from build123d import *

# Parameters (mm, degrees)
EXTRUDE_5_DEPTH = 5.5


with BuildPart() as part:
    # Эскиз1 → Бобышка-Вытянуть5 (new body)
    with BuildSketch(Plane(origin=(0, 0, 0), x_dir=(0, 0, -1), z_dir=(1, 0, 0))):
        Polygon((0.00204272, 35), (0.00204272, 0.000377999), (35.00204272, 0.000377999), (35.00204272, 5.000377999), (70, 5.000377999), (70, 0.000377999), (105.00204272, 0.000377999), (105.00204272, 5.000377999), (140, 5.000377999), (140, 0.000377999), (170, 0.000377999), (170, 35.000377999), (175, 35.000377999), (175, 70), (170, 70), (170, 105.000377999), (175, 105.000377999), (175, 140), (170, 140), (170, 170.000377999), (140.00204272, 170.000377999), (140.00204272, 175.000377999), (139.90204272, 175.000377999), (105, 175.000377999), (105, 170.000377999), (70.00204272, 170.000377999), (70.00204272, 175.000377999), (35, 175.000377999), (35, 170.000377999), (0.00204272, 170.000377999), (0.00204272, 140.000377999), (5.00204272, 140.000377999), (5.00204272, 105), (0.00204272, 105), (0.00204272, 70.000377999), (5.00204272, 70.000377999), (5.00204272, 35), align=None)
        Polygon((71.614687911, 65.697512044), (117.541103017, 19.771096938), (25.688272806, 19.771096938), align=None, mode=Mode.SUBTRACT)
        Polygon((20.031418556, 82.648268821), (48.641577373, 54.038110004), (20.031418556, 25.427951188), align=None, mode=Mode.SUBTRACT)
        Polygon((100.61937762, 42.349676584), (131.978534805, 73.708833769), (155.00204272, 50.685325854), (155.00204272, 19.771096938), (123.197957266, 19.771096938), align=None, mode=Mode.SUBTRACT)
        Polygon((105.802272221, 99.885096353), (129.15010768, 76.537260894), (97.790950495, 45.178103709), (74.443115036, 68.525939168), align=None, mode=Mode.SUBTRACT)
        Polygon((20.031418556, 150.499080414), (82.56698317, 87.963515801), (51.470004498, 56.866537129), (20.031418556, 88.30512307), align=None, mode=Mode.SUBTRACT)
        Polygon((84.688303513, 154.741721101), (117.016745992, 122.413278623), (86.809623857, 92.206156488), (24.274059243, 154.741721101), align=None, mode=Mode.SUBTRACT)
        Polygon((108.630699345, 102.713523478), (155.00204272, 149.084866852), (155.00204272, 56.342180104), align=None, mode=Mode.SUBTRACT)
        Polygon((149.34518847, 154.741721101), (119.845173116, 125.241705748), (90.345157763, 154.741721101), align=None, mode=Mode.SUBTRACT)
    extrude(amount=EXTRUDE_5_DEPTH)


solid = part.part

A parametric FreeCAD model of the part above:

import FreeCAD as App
import Part
import Sketcher
from FreeCAD import Vector

doc = App.newDocument("Part")
body = doc.addObject("PartDesign::Body", "Body")

# Sketch on YZ plane
sketch1 = doc.addObject("Sketcher::SketchObject", "Sketch")
body.addObject(sketch1)
sketch1.AttachmentSupport = (doc.YZ_Plane, [""])
sketch1.MapMode = "FlatFace"
sketch1.addGeometry([
    Part.LineSegment(Vector(35, -0.002043, 0), Vector(0.000378, -0.002043, 0)),  # 0
    Part.LineSegment(Vector(0.000378, -0.002043, 0), Vector(0.000378, -35.002043, 0)),  # 1
    Part.LineSegment(Vector(0.000378, -35.002043, 0), Vector(5.000378, -35.002043, 0)),  # 2
    Part.LineSegment(Vector(5.000378, -35.002043, 0), Vector(5.000378, -70, 0)),  # 3
    Part.LineSegment(Vector(5.000378, -70, 0), Vector(0.000378, -70, 0)),  # 4
    Part.LineSegment(Vector(0.000378, -70, 0), Vector(0.000378, -105.002043, 0)),  # 5
    Part.LineSegment(Vector(0.000378, -105.002043, 0), Vector(5.000378, -105.002043, 0)),  # 6
    Part.LineSegment(Vector(5.000378, -105.002043, 0), Vector(5.000378, -140, 0)),  # 7
    Part.LineSegment(Vector(5.000378, -140, 0), Vector(0.000378, -140, 0)),  # 8
    Part.LineSegment(Vector(0.000378, -140, 0), Vector(0.000378, -170, 0)),  # 9
    Part.LineSegment(Vector(0.000378, -170, 0), Vector(35.000378, -170, 0)),  # 10
    Part.LineSegment(Vector(35.000378, -170, 0), Vector(35.000378, -175, 0)),  # 11
    Part.LineSegment(Vector(35.000378, -175, 0), Vector(70, -175, 0)),  # 12
    Part.LineSegment(Vector(70, -175, 0), Vector(70, -170, 0)),  # 13
    Part.LineSegment(Vector(70, -170, 0), Vector(105.000378, -170, 0)),  # 14
    Part.LineSegment(Vector(105.000378, -170, 0), Vector(105.000378, -175, 0)),  # 15
    Part.LineSegment(Vector(105.000378, -175, 0), Vector(140, -175, 0)),  # 16
    Part.LineSegment(Vector(140, -175, 0), Vector(140, -170, 0)),  # 17
    Part.LineSegment(Vector(140, -170, 0), Vector(170.000378, -170, 0)),  # 18
    Part.LineSegment(Vector(170.000378, -170, 0), Vector(170.000378, -140.002043, 0)),  # 19
    Part.LineSegment(Vector(170.000378, -140.002043, 0), Vector(175.000378, -140.002043, 0)),  # 20
    Part.LineSegment(Vector(175.000378, -140.002043, 0), Vector(175.000378, -105, 0)),  # 21
    Part.LineSegment(Vector(175.000378, -105, 0), Vector(170.000378, -105, 0)),  # 22
    Part.LineSegment(Vector(170.000378, -105, 0), Vector(170.000378, -70.002043, 0)),  # 23
    Part.LineSegment(Vector(170.000378, -70.002043, 0), Vector(175.000378, -70.002043, 0)),  # 24
    Part.LineSegment(Vector(175.000378, -70.002043, 0), Vector(175.000378, -35, 0)),  # 25
    Part.LineSegment(Vector(175.000378, -35, 0), Vector(170.000378, -35, 0)),  # 26
    Part.LineSegment(Vector(170.000378, -35, 0), Vector(170.000378, -0.002043, 0)),  # 27
    Part.LineSegment(Vector(170.000378, -0.002043, 0), Vector(140.000378, -0.002043, 0)),  # 28
    Part.LineSegment(Vector(140.000378, -0.002043, 0), Vector(140.000378, -5.002043, 0)),  # 29
    Part.LineSegment(Vector(140.000378, -5.002043, 0), Vector(105, -5.002043, 0)),  # 30
    Part.LineSegment(Vector(105, -5.002043, 0), Vector(105, -0.002043, 0)),  # 31
    Part.LineSegment(Vector(105, -0.002043, 0), Vector(70.000378, -0.002043, 0)),  # 32
    Part.LineSegment(Vector(70.000378, -0.002043, 0), Vector(70.000378, -5.002043, 0)),  # 33
    Part.LineSegment(Vector(70.000378, -5.002043, 0), Vector(35, -5.002043, 0)),  # 34
    Part.LineSegment(Vector(35, -5.002043, 0), Vector(35, -0.002043, 0)),  # 35
    Part.LineSegment(Vector(19.771097, -25.688273, 0), Vector(65.697512, -71.614688, 0)),  # 36
    Part.LineSegment(Vector(65.697512, -71.614688, 0), Vector(19.771097, -117.541103, 0)),  # 37
    Part.LineSegment(Vector(19.771097, -117.541103, 0), Vector(19.771097, -25.688273, 0)),  # 38
    Part.LineSegment(Vector(25.427951, -20.031419, 0), Vector(82.648269, -20.031419, 0)),  # 39
    Part.LineSegment(Vector(82.648269, -20.031419, 0), Vector(54.03811, -48.641577, 0)),  # 40
    Part.LineSegment(Vector(54.03811, -48.641577, 0), Vector(25.427951, -20.031419, 0)),  # 41
    Part.LineSegment(Vector(19.771097, -123.197957, 0), Vector(42.349677, -100.619378, 0)),  # 42
    Part.LineSegment(Vector(42.349677, -100.619378, 0), Vector(73.708834, -131.978535, 0)),  # 43
    Part.LineSegment(Vector(73.708834, -131.978535, 0), Vector(50.685326, -155.002043, 0)),  # 44
    Part.LineSegment(Vector(50.685326, -155.002043, 0), Vector(19.771097, -155.002043, 0)),  # 45
    Part.LineSegment(Vector(19.771097, -155.002043, 0), Vector(19.771097, -123.197957, 0)),  # 46
    Part.LineSegment(Vector(68.525939, -74.443115, 0), Vector(99.885096, -105.802272, 0)),  # 47
    Part.LineSegment(Vector(99.885096, -105.802272, 0), Vector(76.537261, -129.150108, 0)),  # 48
    Part.LineSegment(Vector(76.537261, -129.150108, 0), Vector(45.178104, -97.79095, 0)),  # 49
    Part.LineSegment(Vector(45.178104, -97.79095, 0), Vector(68.525939, -74.443115, 0)),  # 50
    Part.LineSegment(Vector(88.305123, -20.031419, 0), Vector(150.49908, -20.031419, 0)),  # 51
    Part.LineSegment(Vector(150.49908, -20.031419, 0), Vector(87.963516, -82.566983, 0)),  # 52
    Part.LineSegment(Vector(87.963516, -82.566983, 0), Vector(56.866537, -51.470004, 0)),  # 53
    Part.LineSegment(Vector(56.866537, -51.470004, 0), Vector(88.305123, -20.031419, 0)),  # 54
    Part.LineSegment(Vector(154.741721, -24.274059, 0), Vector(154.741721, -84.688304, 0)),  # 55
    Part.LineSegment(Vector(154.741721, -84.688304, 0), Vector(122.413279, -117.016746, 0)),  # 56
    Part.LineSegment(Vector(122.413279, -117.016746, 0), Vector(92.206156, -86.809624, 0)),  # 57
    Part.LineSegment(Vector(92.206156, -86.809624, 0), Vector(154.741721, -24.274059, 0)),  # 58
    Part.LineSegment(Vector(56.34218, -155.002043, 0), Vector(102.713523, -108.630699, 0)),  # 59
    Part.LineSegment(Vector(102.713523, -108.630699, 0), Vector(149.084867, -155.002043, 0)),  # 60
    Part.LineSegment(Vector(149.084867, -155.002043, 0), Vector(56.34218, -155.002043, 0)),  # 61
    Part.LineSegment(Vector(154.741721, -90.345158, 0), Vector(154.741721, -149.345188, 0)),  # 62
    Part.LineSegment(Vector(154.741721, -149.345188, 0), Vector(125.241706, -119.845173, 0)),  # 63
    Part.LineSegment(Vector(125.241706, -119.845173, 0), Vector(154.741721, -90.345158, 0)),  # 64
], False)
sketch1.addConstraint([
    Sketcher.Constraint("Coincident", 0, 2, 1, 1),
    Sketcher.Constraint("Coincident", 1, 2, 2, 1),
    Sketcher.Constraint("Coincident", 2, 2, 3, 1),
    Sketcher.Constraint("Coincident", 3, 2, 4, 1),
    Sketcher.Constraint("Coincident", 4, 2, 5, 1),
    Sketcher.Constraint("Coincident", 5, 2, 6, 1),
    Sketcher.Constraint("Coincident", 6, 2, 7, 1),
    Sketcher.Constraint("Coincident", 7, 2, 8, 1),
    Sketcher.Constraint("Coincident", 8, 2, 9, 1),
    Sketcher.Constraint("Coincident", 9, 2, 10, 1),
    Sketcher.Constraint("Coincident", 10, 2, 11, 1),
    Sketcher.Constraint("Coincident", 11, 2, 12, 1),
    Sketcher.Constraint("Coincident", 12, 2, 13, 1),
    Sketcher.Constraint("Coincident", 13, 2, 14, 1),
    Sketcher.Constraint("Coincident", 14, 2, 15, 1),
    Sketcher.Constraint("Coincident", 15, 2, 16, 1),
    Sketcher.Constraint("Coincident", 16, 2, 17, 1),
    Sketcher.Constraint("Coincident", 17, 2, 18, 1),
    Sketcher.Constraint("Coincident", 18, 2, 19, 1),
    Sketcher.Constraint("Coincident", 19, 2, 20, 1),
    Sketcher.Constraint("Coincident", 20, 2, 21, 1),
    Sketcher.Constraint("Coincident", 21, 2, 22, 1),
    Sketcher.Constraint("Coincident", 22, 2, 23, 1),
    Sketcher.Constraint("Coincident", 23, 2, 24, 1),
    Sketcher.Constraint("Coincident", 24, 2, 25, 1),
    Sketcher.Constraint("Coincident", 25, 2, 26, 1),
    Sketcher.Constraint("Coincident", 26, 2, 27, 1),
    Sketcher.Constraint("Coincident", 27, 2, 28, 1),
    Sketcher.Constraint("Coincident", 28, 2, 29, 1),
    Sketcher.Constraint("Coincident", 29, 2, 30, 1),
    Sketcher.Constraint("Coincident", 30, 2, 31, 1),
    Sketcher.Constraint("Coincident", 31, 2, 32, 1),
    Sketcher.Constraint("Coincident", 32, 2, 33, 1),
    Sketcher.Constraint("Coincident", 33, 2, 34, 1),
    Sketcher.Constraint("Coincident", 34, 2, 35, 1),
    Sketcher.Constraint("Coincident", 35, 2, 0, 1),
    Sketcher.Constraint("Coincident", 36, 2, 37, 1),
    Sketcher.Constraint("Coincident", 37, 2, 38, 1),
    Sketcher.Constraint("Coincident", 38, 2, 36, 1),
    Sketcher.Constraint("Coincident", 39, 2, 40, 1),
    Sketcher.Constraint("Coincident", 40, 2, 41, 1),
    Sketcher.Constraint("Coincident", 41, 2, 39, 1),
    Sketcher.Constraint("Coincident", 42, 2, 43, 1),
    Sketcher.Constraint("Coincident", 43, 2, 44, 1),
    Sketcher.Constraint("Coincident", 44, 2, 45, 1),
    Sketcher.Constraint("Coincident", 45, 2, 46, 1),
    Sketcher.Constraint("Coincident", 46, 2, 42, 1),
    Sketcher.Constraint("Coincident", 47, 2, 48, 1),
    Sketcher.Constraint("Coincident", 48, 2, 49, 1),
    Sketcher.Constraint("Coincident", 49, 2, 50, 1),
    Sketcher.Constraint("Coincident", 50, 2, 47, 1),
    Sketcher.Constraint("Coincident", 51, 2, 52, 1),
    Sketcher.Constraint("Coincident", 52, 2, 53, 1),
    Sketcher.Constraint("Coincident", 53, 2, 54, 1),
    Sketcher.Constraint("Coincident", 54, 2, 51, 1),
    Sketcher.Constraint("Coincident", 55, 2, 56, 1),
    Sketcher.Constraint("Coincident", 56, 2, 57, 1),
    Sketcher.Constraint("Coincident", 57, 2, 58, 1),
    Sketcher.Constraint("Coincident", 58, 2, 55, 1),
    Sketcher.Constraint("Coincident", 59, 2, 60, 1),
    Sketcher.Constraint("Coincident", 60, 2, 61, 1),
    Sketcher.Constraint("Coincident", 61, 2, 59, 1),
    Sketcher.Constraint("Coincident", 62, 2, 63, 1),
    Sketcher.Constraint("Coincident", 63, 2, 64, 1),
    Sketcher.Constraint("Coincident", 64, 2, 62, 1),
    Sketcher.Constraint("Horizontal", 0),
    Sketcher.Constraint("Vertical", 1),
    Sketcher.Constraint("Horizontal", 2),
    Sketcher.Constraint("Vertical", 3),
    Sketcher.Constraint("Horizontal", 4),
    Sketcher.Constraint("Vertical", 5),
    Sketcher.Constraint("Horizontal", 6),
    Sketcher.Constraint("Vertical", 7),
    Sketcher.Constraint("Horizontal", 8),
    Sketcher.Constraint("Vertical", 9),
    Sketcher.Constraint("Horizontal", 10),
    Sketcher.Constraint("Vertical", 11),
    Sketcher.Constraint("Horizontal", 12),
    Sketcher.Constraint("Vertical", 13),
    Sketcher.Constraint("Horizontal", 14),
    Sketcher.Constraint("Vertical", 15),
    Sketcher.Constraint("Horizontal", 16),
    Sketcher.Constraint("Vertical", 17),
    Sketcher.Constraint("Horizontal", 18),
    Sketcher.Constraint("Vertical", 19),
    Sketcher.Constraint("Horizontal", 20),
    Sketcher.Constraint("Vertical", 21),
    Sketcher.Constraint("Horizontal", 22),
    Sketcher.Constraint("Vertical", 23),
    Sketcher.Constraint("Horizontal", 24),
    Sketcher.Constraint("Vertical", 25),
    Sketcher.Constraint("Horizontal", 26),
    Sketcher.Constraint("Vertical", 27),
    Sketcher.Constraint("Horizontal", 28),
    Sketcher.Constraint("Vertical", 29),
    Sketcher.Constraint("Horizontal", 30),
    Sketcher.Constraint("Vertical", 31),
    Sketcher.Constraint("Horizontal", 32),
    Sketcher.Constraint("Vertical", 33),
    Sketcher.Constraint("Horizontal", 34),
    Sketcher.Constraint("Vertical", 35),
    Sketcher.Constraint("Vertical", 38),
    Sketcher.Constraint("Horizontal", 39),
    Sketcher.Constraint("Horizontal", 45),
    Sketcher.Constraint("Vertical", 46),
    Sketcher.Constraint("Horizontal", 51),
    Sketcher.Constraint("Vertical", 55),
    Sketcher.Constraint("Horizontal", 61),
    Sketcher.Constraint("Vertical", 62),
    Sketcher.Constraint("Perpendicular", 36, 37),
    Sketcher.Constraint("Parallel", 37, 40),
    Sketcher.Constraint("Perpendicular", 40, 41),
    Sketcher.Constraint("Perpendicular", 41, 42),
    Sketcher.Constraint("Perpendicular", 42, 43),
    Sketcher.Constraint("Perpendicular", 43, 44),
    Sketcher.Constraint("Perpendicular", 44, 47),
    Sketcher.Constraint("Perpendicular", 47, 48),
    Sketcher.Constraint("Perpendicular", 48, 49),
    Sketcher.Constraint("Perpendicular", 49, 50),
    Sketcher.Constraint("Parallel", 50, 52),
    Sketcher.Constraint("Perpendicular", 52, 53),
    Sketcher.Constraint("Perpendicular", 53, 54),
    Sketcher.Constraint("Parallel", 54, 56),
    Sketcher.Constraint("Perpendicular", 56, 57),
    Sketcher.Constraint("Perpendicular", 57, 58),
    Sketcher.Constraint("Parallel", 58, 59),
    Sketcher.Constraint("Perpendicular", 59, 60),
    Sketcher.Constraint("Parallel", 60, 63),
    Sketcher.Constraint("Perpendicular", 63, 64),
    Sketcher.Constraint("Horizontal", 10, 2, 13, 2),
    Sketcher.Constraint("Horizontal", 12, 2, 15, 2),
    Sketcher.Constraint("Horizontal", 14, 2, 17, 2),
    Sketcher.Constraint("Horizontal", 0, 2, 27, 2),
    Sketcher.Constraint("Horizontal", 28, 2, 31, 2),
    Sketcher.Constraint("Horizontal", 30, 2, 33, 2),
    Sketcher.Constraint("Horizontal", 41, 2, 51, 2),
    Sketcher.Constraint("Horizontal", 45, 2, 60, 2),
    Sketcher.Constraint("Vertical", 1, 2, 4, 2),
    Sketcher.Constraint("Vertical", 3, 2, 6, 2),
    Sketcher.Constraint("Vertical", 5, 2, 8, 2),
    Sketcher.Constraint("Vertical", 19, 2, 22, 2),
    Sketcher.Constraint("Vertical", 21, 2, 24, 2),
    Sketcher.Constraint("Vertical", 23, 2, 26, 2),
    Sketcher.Constraint("Vertical", 38, 2, 45, 2),
    Sketcher.Constraint("Vertical", 58, 2, 62, 2),
    Sketcher.Constraint("Equal", 0, 12),
    Sketcher.Constraint("Equal", 12, 16),
    Sketcher.Constraint("Equal", 8, 20),
    Sketcher.Constraint("Equal", 14, 30),
    Sketcher.Constraint("Equal", 16, 32),
    Sketcher.Constraint("Equal", 30, 34),
    Sketcher.Constraint("Equal", 10, 1),
    Sketcher.Constraint("Equal", 3, 7),
    Sketcher.Constraint("Equal", 28, 9),
    Sketcher.Constraint("Equal", 26, 11),
    Sketcher.Constraint("Equal", 5, 21),
    Sketcher.Constraint("Equal", 7, 23),
    Sketcher.Constraint("Equal", 21, 25),
    Sketcher.Constraint("Equal", 23, 27),
    Sketcher.Constraint("Equal", 17, 29),
    Sketcher.Constraint("Equal", 36, 37),
    Sketcher.Constraint("Equal", 43, 47),
    Sketcher.Constraint("Equal", 52, 58),
    Sketcher.Constraint("DistanceX", 2, 1, 2, 2, 5.0),
    Sketcher.Constraint("DistanceX", 10, 1, 10, 2, 35.0),
    Sketcher.Constraint("DistanceX", 28, 2, 28, 1, 30.0),
    Sketcher.Constraint("DistanceY", 3, 2, -1, 1, 70.0),
    Sketcher.Constraint("DistanceY", 7, 2, -1, 1, 140.0),
    Sketcher.Constraint("DistanceX", -1, 1, 12, 2, 70.0),
    Sketcher.Constraint("DistanceX", -1, 1, 16, 2, 140.0),
    Sketcher.Constraint("DistanceX", 45, 2, 45, 1, 30.914229),
    Sketcher.Constraint("DistanceY", 38, 1, 38, 2, 91.85283),
    Sketcher.Constraint("DistanceY", 62, 2, 62, 1, 59.000031),
    Sketcher.Constraint("DistanceY", 59, 2, -1, 1, 108.630699),
    Sketcher.Constraint("Distance", 53, 43.977769),
    Sketcher.Constraint("Distance", 56, 45.719322),
    Sketcher.Constraint("Distance", 57, 42.719322),
    Sketcher.Constraint("DistanceX", 0, 2, 0, 1, 34.999622),
    Sketcher.Constraint("DistanceX", 39, 1, 39, 2, 57.220318),
    Sketcher.Constraint("DistanceX", 61, 2, 61, 1, 92.742687),
    Sketcher.Constraint("DistanceY", 3, 2, 3, 1, 34.997957),
    Sketcher.Constraint("DistanceY", 46, 1, 46, 2, 31.804085),
    Sketcher.Constraint("DistanceX", -1, 1, 39, 2, 82.648269),
    Sketcher.Constraint("DistanceY", 39, 2, -1, 1, 20.031419),
    Sketcher.Constraint("DistanceX", -1, 1, 48, 2, 76.537261),
    Sketcher.Constraint("DistanceY", 49, 2, -1, 1, 97.79095),
    Sketcher.Constraint("DistanceX", -1, 1, 50, 2, 68.525939),
    Sketcher.Constraint("DistanceX", -1, 1, 51, 2, 150.49908),
    Sketcher.Constraint("DistanceX", -1, 1, 55, 2, 154.741721),
    Sketcher.Constraint("DistanceY", 58, 2, -1, 1, 24.274059),
    Sketcher.Constraint("DistanceX", -1, 1, 61, 2, 56.34218),
    Sketcher.Constraint("DistanceY", 62, 2, -1, 1, 149.345188),
    Sketcher.Constraint("Distance", 42, 31.930934),
    Sketcher.Constraint("DistanceX", -1, 1, 36, 2, 65.697512),
    Sketcher.Constraint("DistanceY", 36, 2, -1, 1, 71.614688),
])
pad1 = doc.addObject("PartDesign::Pad", "Pad")
body.addObject(pad1)
pad1.Profile = sketch1
pad1.Length = 5.5

doc.recompute()
